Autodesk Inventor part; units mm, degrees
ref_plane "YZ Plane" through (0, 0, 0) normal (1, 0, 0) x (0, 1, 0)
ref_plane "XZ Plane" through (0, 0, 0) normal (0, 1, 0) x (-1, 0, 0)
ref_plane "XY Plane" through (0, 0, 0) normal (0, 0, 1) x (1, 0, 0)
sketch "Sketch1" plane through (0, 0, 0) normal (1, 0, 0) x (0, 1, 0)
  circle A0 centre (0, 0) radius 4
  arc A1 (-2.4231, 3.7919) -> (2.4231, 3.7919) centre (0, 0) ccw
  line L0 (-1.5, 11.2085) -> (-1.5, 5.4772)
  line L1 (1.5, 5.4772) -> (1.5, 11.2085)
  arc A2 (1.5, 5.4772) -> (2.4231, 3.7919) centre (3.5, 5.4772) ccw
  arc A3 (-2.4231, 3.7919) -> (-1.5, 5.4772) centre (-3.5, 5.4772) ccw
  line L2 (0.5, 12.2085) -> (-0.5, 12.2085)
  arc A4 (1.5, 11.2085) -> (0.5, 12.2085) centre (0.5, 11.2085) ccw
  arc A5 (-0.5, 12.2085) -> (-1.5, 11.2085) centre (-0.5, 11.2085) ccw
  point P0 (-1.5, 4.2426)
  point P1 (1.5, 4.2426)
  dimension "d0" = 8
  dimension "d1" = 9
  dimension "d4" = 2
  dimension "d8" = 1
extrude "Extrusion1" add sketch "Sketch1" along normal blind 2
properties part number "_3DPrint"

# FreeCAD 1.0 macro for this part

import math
import FreeCAD as App
import Part
import Sketcher
from FreeCAD import Vector

doc = App.newDocument("Part")
body = doc.addObject("PartDesign::Body", "Body")

sketch1 = body.newObject("Sketcher::SketchObject", "Sketch")
sketch1.AttachmentSupport = (doc.getObject("YZ_Plane"), [""])
sketch1.MapMode = "FlatFace"
sketch1.addGeometry(Part.ArcOfCircle(Part.Circle(Vector(-3.5, 5.5, 0), Vector(0, 0, 1), 2), math.radians(-57), math.radians(0)), False)
sketch1.addGeometry(Part.ArcOfCircle(Part.Circle(Vector(0, 0, 0), Vector(0, 0, 1), 4.5), math.radians(123), math.radians(417)), False)
sketch1.addGeometry(Part.ArcOfCircle(Part.Circle(Vector(3.5, 5.5, 0), Vector(0, 0, 1), 2), math.radians(180), math.radians(237)), False)
sketch1.addGeometry(Part.LineSegment(Vector(1.5, 5.5, 0), Vector(1.5, 11.2, 0)), False)
sketch1.addGeometry(Part.ArcOfCircle(Part.Circle(Vector(0.5, 11.2, 0), Vector(0, 0, 1), 1), math.radians(0), math.radians(90)), False)
sketch1.addGeometry(Part.LineSegment(Vector(0.5, 12.2, 0), Vector(-0.5, 12.2, 0)), False)
sketch1.addGeometry(Part.ArcOfCircle(Part.Circle(Vector(-0.5, 11.2, 0), Vector(0, 0, 1), 1), math.radians(90), math.radians(180)), False)
sketch1.addGeometry(Part.LineSegment(Vector(-1.5, 11.2, 0), Vector(-1.5, 5.5, 0)), False)
sketch1.addGeometry(Part.Circle(Vector(0, 0, 0), Vector(0, 0, 1), 4), False)
sketch1.addConstraint(Sketcher.Constraint("Tangent", 0, 1, 1, 1))
sketch1.addConstraint(Sketcher.Constraint("Tangent", 1, 2, 2, 2))
sketch1.addConstraint(Sketcher.Constraint("Tangent", 2, 1, 3, 1))
sketch1.addConstraint(Sketcher.Constraint("Tangent", 3, 2, 4, 1))
sketch1.addConstraint(Sketcher.Constraint("Tangent", 4, 2, 5, 1))
sketch1.addConstraint(Sketcher.Constraint("Tangent", 5, 2, 6, 1))
sketch1.addConstraint(Sketcher.Constraint("Tangent", 6, 2, 7, 1))
sketch1.addConstraint(Sketcher.Constraint("Tangent", 7, 2, 0, 2))
sketch1.addConstraint(Sketcher.Constraint("Vertical", 3))
sketch1.addConstraint(Sketcher.Constraint("Horizontal", 5))
sketch1.addConstraint(Sketcher.Constraint("Vertical", 7))
sketch1.addConstraint(Sketcher.Constraint("Coincident", 1, 3, -1, 1))
sketch1.addConstraint(Sketcher.Constraint("Coincident", 8, 3, -1, 1))
sketch1.addConstraint(Sketcher.Constraint("Equal", 0, 2))
sketch1.addConstraint(Sketcher.Constraint("Equal", 4, 6))
sketch1.addConstraint(Sketcher.Constraint("Horizontal", 0, 3, 2, 3))
sketch1.addConstraint(Sketcher.Constraint("Diameter", 8, 8.0))
sketch1.addConstraint(Sketcher.Constraint("Radius", 0, 2.0))
sketch1.addConstraint(Sketcher.Constraint("Radius", 4, 1.0))
sketch1.addConstraint(Sketcher.Constraint("Radius", 1, 4.5))
sketch1.addConstraint(Sketcher.Constraint("DistanceX", 5, 2, 5, 1, 1.0))
sketch1.addConstraint(Sketcher.Constraint("DistanceY", 3, 1, 3, 2, 5.7313))
pad1 = body.newObject("PartDesign::Pad", "Pad")
pad1.Profile = sketch1
pad1.Length = 2

doc.recompute()
